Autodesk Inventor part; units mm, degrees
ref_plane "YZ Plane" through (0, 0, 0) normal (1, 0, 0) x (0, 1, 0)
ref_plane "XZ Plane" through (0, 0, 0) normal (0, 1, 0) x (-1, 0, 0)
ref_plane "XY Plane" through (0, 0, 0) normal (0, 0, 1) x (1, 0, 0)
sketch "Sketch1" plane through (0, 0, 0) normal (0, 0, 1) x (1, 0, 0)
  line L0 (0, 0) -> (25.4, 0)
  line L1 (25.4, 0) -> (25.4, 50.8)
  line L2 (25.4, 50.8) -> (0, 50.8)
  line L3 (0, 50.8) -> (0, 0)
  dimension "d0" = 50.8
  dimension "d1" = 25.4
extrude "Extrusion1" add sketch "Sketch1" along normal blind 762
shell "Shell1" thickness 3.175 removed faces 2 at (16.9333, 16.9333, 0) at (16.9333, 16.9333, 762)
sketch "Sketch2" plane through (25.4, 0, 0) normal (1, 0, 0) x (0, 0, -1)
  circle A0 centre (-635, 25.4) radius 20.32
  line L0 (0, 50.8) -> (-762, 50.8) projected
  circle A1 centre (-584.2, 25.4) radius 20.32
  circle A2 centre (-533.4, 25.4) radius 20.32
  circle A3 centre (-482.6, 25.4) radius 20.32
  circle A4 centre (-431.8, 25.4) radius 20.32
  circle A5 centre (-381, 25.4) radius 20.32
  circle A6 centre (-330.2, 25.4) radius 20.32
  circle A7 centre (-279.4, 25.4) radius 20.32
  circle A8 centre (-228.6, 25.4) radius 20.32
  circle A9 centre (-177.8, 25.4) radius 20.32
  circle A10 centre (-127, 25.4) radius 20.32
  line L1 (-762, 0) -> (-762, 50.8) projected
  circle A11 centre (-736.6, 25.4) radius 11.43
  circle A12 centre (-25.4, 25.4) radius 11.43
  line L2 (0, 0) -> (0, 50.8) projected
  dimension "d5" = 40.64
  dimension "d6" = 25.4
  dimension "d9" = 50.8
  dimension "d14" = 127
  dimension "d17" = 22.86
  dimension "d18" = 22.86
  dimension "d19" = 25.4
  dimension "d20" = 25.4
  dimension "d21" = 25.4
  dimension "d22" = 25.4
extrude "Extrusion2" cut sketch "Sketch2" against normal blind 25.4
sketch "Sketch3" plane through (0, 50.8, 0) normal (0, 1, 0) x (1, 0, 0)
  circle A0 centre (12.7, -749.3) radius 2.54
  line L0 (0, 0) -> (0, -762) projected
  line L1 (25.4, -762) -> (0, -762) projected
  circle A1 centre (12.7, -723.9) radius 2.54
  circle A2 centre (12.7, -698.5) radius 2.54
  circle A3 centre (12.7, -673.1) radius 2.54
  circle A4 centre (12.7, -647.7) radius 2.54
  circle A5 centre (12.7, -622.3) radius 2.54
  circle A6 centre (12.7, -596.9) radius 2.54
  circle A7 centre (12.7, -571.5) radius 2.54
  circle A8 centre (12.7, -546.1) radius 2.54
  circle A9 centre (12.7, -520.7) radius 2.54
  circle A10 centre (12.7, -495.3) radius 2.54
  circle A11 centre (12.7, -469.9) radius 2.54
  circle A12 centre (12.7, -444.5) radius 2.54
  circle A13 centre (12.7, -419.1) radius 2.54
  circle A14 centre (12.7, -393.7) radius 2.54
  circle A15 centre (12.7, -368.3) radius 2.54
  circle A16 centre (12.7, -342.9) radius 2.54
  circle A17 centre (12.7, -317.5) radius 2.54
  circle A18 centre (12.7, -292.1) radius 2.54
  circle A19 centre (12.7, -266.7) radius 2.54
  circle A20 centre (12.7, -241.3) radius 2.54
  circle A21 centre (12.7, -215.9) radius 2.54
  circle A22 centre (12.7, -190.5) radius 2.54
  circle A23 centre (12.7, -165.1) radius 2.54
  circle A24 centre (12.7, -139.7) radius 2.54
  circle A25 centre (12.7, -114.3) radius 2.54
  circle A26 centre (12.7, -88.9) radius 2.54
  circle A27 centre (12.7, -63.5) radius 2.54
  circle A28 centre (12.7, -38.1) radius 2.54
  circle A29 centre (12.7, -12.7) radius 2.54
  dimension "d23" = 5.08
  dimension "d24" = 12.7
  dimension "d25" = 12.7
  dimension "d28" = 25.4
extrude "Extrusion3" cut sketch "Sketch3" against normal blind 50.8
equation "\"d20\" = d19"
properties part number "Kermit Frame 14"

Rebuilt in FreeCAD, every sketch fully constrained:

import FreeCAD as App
import Part
import Sketcher

V = App.Vector
Q = App.Units.Quantity


def faces_at(feature, points):
    """Names of the faces that lie closest to the given points."""
    faces = feature.Shape.Faces
    near = lambda p: min(range(len(faces)), key=lambda i: faces[i].distToShape(Part.Vertex(*p))[0])
    return sorted({f"Face{near(p) + 1}" for p in points})


def add_polygon(sketch, points):
    """Adds a closed chain of lines whose ends are joined by coincident constraints."""
    first, n = sketch.GeometryCount, len(points)
    for a, b in zip(points, points[1:] + points[:1]):
        sketch.addGeometry(Part.LineSegment(App.Vector(*a, 0), App.Vector(*b, 0)), False)
    for i in range(n):
        sketch.addConstraint(Sketcher.Constraint("Coincident", first + i, 2, first + (i + 1) % n, 1))

doc = App.newDocument("Part")
body = doc.addObject("PartDesign::Body", "Body")

sketch1 = body.newObject("Sketcher::SketchObject", "Sketch")
sketch1.AttachmentSupport = (doc.getObject("XY_Plane"), [""])
sketch1.MapMode = "FlatFace"
add_polygon(sketch1, [(0, 50.8), (0, 0), (25.4, 0), (25.4, 50.8)])
sketch1.addConstraint(Sketcher.Constraint("Vertical", 0))
sketch1.addConstraint(Sketcher.Constraint("Horizontal", 1))
sketch1.addConstraint(Sketcher.Constraint("Vertical", 2))
sketch1.addConstraint(Sketcher.Constraint("Horizontal", 3))
sketch1.addConstraint(Sketcher.Constraint("Coincident", 0, 2, -1, 1))
sketch1.addConstraint(Sketcher.Constraint("DistanceX", 1, 1, 1, 2, Q("1 in")))
sketch1.addConstraint(Sketcher.Constraint("DistanceY", 0, 2, 0, 1, Q("2 in")))
pad1 = body.newObject("PartDesign::Pad", "Pad")
pad1.Profile = sketch1
pad1.Length = Q("30 in")
doc.recompute()

thickness = body.newObject("PartDesign::Thickness", "Thickness")
thickness.Base = (pad1, faces_at(pad1, [(16.933, 16.933, 0), (16.933, 16.933, 762)]))
thickness.Value = Q("0.125 in")
thickness.Reversed = True
thickness.Join = "Intersection"

sketch2 = body.newObject("Sketcher::SketchObject", "Sketch001")
sketch2.AttachmentSupport = (doc.getObject("YZ_Plane"), [""])
sketch2.MapMode = "FlatFace"
sketch2.AttachmentOffset = App.Placement(V(0, 0, 1 * 25.4), App.Rotation())
sketch2.addGeometry(Part.Circle(V(25.4, 635, 0), V(0, 0, 1), 20.32), False)
sketch2.addGeometry(Part.Circle(V(25.4, 584.2, 0), V(0, 0, 1), 20.32), False)
sketch2.addGeometry(Part.Circle(V(25.4, 533.4, 0), V(0, 0, 1), 20.32), False)
sketch2.addGeometry(Part.Circle(V(25.4, 482.6, 0), V(0, 0, 1), 20.32), False)
sketch2.addGeometry(Part.Circle(V(25.4, 431.8, 0), V(0, 0, 1), 20.32), False)
sketch2.addGeometry(Part.Circle(V(25.4, 381, 0), V(0, 0, 1), 20.32), False)
sketch2.addGeometry(Part.Circle(V(25.4, 330.2, 0), V(0, 0, 1), 20.32), False)
sketch2.addGeometry(Part.Circle(V(25.4, 279.4, 0), V(0, 0, 1), 20.32), False)
sketch2.addGeometry(Part.Circle(V(25.4, 228.6, 0), V(0, 0, 1), 20.32), False)
sketch2.addGeometry(Part.Circle(V(25.4, 177.8, 0), V(0, 0, 1), 20.32), False)
sketch2.addGeometry(Part.Circle(V(25.4, 127, 0), V(0, 0, 1), 20.32), False)
sketch2.addGeometry(Part.Circle(V(25.4, 736.6, 0), V(0, 0, 1), 11.43), False)
sketch2.addGeometry(Part.Circle(V(25.4, 25.4, 0), V(0, 0, 1), 11.43), False)
sketch2.addConstraint(Sketcher.Constraint("Equal", 0, 1))
sketch2.addConstraint(Sketcher.Constraint("Equal", 1, 2))
sketch2.addConstraint(Sketcher.Constraint("Equal", 2, 3))
sketch2.addConstraint(Sketcher.Constraint("Equal", 3, 4))
sketch2.addConstraint(Sketcher.Constraint("Equal", 4, 5))
sketch2.addConstraint(Sketcher.Constraint("Equal", 5, 6))
sketch2.addConstraint(Sketcher.Constraint("Equal", 6, 7))
sketch2.addConstraint(Sketcher.Constraint("Equal", 7, 8))
sketch2.addConstraint(Sketcher.Constraint("Equal", 8, 9))
sketch2.addConstraint(Sketcher.Constraint("Equal", 9, 10))
sketch2.addConstraint(Sketcher.Constraint("Equal", 11, 12))
sketch2.addConstraint(Sketcher.Constraint("Vertical", 0, 3, 1, 3))
sketch2.addConstraint(Sketcher.Constraint("Vertical", 1, 3, 2, 3))
sketch2.addConstraint(Sketcher.Constraint("Vertical", 2, 3, 3, 3))
sketch2.addConstraint(Sketcher.Constraint("Vertical", 3, 3, 4, 3))
sketch2.addConstraint(Sketcher.Constraint("Vertical", 4, 3, 5, 3))
sketch2.addConstraint(Sketcher.Constraint("Vertical", 5, 3, 6, 3))
sketch2.addConstraint(Sketcher.Constraint("Vertical", 6, 3, 7, 3))
sketch2.addConstraint(Sketcher.Constraint("Vertical", 7, 3, 8, 3))
sketch2.addConstraint(Sketcher.Constraint("Vertical", 8, 3, 9, 3))
sketch2.addConstraint(Sketcher.Constraint("Vertical", 9, 3, 10, 3))
sketch2.addConstraint(Sketcher.Constraint("Vertical", 10, 3, 11, 3))
sketch2.addConstraint(Sketcher.Constraint("Vertical", 11, 3, 12, 3))
sketch2.addConstraint(Sketcher.Constraint("Diameter", 0, Q("1.6 in")))
sketch2.addConstraint(Sketcher.Constraint("Diameter", 11, Q("0.9 in")))
sketch2.addConstraint(Sketcher.Constraint("DistanceX", -1, 1, 0, 3, Q("1 in")))
sketch2.addConstraint(Sketcher.Constraint("DistanceY", -1, 1, 10, 3, Q("5 in")))
sketch2.addConstraint(Sketcher.Constraint("DistanceY", -1, 1, 12, 3, Q("1 in")))
sketch2.addConstraint(Sketcher.Constraint("DistanceY", 1, 3, 0, 3, Q("2 in")))
sketch2.addConstraint(Sketcher.Constraint("DistanceY", 2, 3, 1, 3, Q("2 in")))
sketch2.addConstraint(Sketcher.Constraint("DistanceY", 3, 3, 2, 3, Q("2 in")))
sketch2.addConstraint(Sketcher.Constraint("DistanceY", 4, 3, 3, 3, Q("2 in")))
sketch2.addConstraint(Sketcher.Constraint("DistanceY", 5, 3, 4, 3, Q("2 in")))
sketch2.addConstraint(Sketcher.Constraint("DistanceY", 6, 3, 5, 3, Q("2 in")))
sketch2.addConstraint(Sketcher.Constraint("DistanceY", 7, 3, 6, 3, Q("2 in")))
sketch2.addConstraint(Sketcher.Constraint("DistanceY", 8, 3, 7, 3, Q("2 in")))
sketch2.addConstraint(Sketcher.Constraint("DistanceY", 9, 3, 8, 3, Q("2 in")))
sketch2.addConstraint(Sketcher.Constraint("DistanceY", 10, 3, 9, 3, Q("2 in")))
sketch2.addConstraint(Sketcher.Constraint("DistanceY", -1, 1, 11, 3, Q("29 in")))
pocket1 = body.newObject("PartDesign::Pocket", "Pocket")
pocket1.Profile = sketch2
pocket1.Length = Q("1 in")

sketch3 = body.newObject("Sketcher::SketchObject", "Sketch002")
sketch3.AttachmentSupport = (doc.getObject("XZ_Plane"), [""])
sketch3.MapMode = "FlatFace"
sketch3.AttachmentOffset = App.Placement(V(0, 0, -2 * 25.4), App.Rotation())
sketch3.addGeometry(Part.Circle(V(12.7, 749.3, 0), V(0, 0, 1), 2.54), False)
sketch3.addGeometry(Part.Circle(V(12.7, 723.9, 0), V(0, 0, 1), 2.54), False)
sketch3.addGeometry(Part.Circle(V(12.7, 698.5, 0), V(0, 0, 1), 2.54), False)
sketch3.addGeometry(Part.Circle(V(12.7, 673.1, 0), V(0, 0, 1), 2.54), False)
sketch3.addGeometry(Part.Circle(V(12.7, 647.7, 0), V(0, 0, 1), 2.54), False)
sketch3.addGeometry(Part.Circle(V(12.7, 622.3, 0), V(0, 0, 1), 2.54), False)
sketch3.addGeometry(Part.Circle(V(12.7, 596.9, 0), V(0, 0, 1), 2.54), False)
sketch3.addGeometry(Part.Circle(V(12.7, 571.5, 0), V(0, 0, 1), 2.54), False)
sketch3.addGeometry(Part.Circle(V(12.7, 546.1, 0), V(0, 0, 1), 2.54), False)
sketch3.addGeometry(Part.Circle(V(12.7, 520.7, 0), V(0, 0, 1), 2.54), False)
sketch3.addGeometry(Part.Circle(V(12.7, 495.3, 0), V(0, 0, 1), 2.54), False)
sketch3.addGeometry(Part.Circle(V(12.7, 469.9, 0), V(0, 0, 1), 2.54), False)
sketch3.addGeometry(Part.Circle(V(12.7, 444.5, 0), V(0, 0, 1), 2.54), False)
sketch3.addGeometry(Part.Circle(V(12.7, 419.1, 0), V(0, 0, 1), 2.54), False)
sketch3.addGeometry(Part.Circle(V(12.7, 393.7, 0), V(0, 0, 1), 2.54), False)
sketch3.addGeometry(Part.Circle(V(12.7, 368.3, 0), V(0, 0, 1), 2.54), False)
sketch3.addGeometry(Part.Circle(V(12.7, 342.9, 0), V(0, 0, 1), 2.54), False)
sketch3.addGeometry(Part.Circle(V(12.7, 317.5, 0), V(0, 0, 1), 2.54), False)
sketch3.addGeometry(Part.Circle(V(12.7, 292.1, 0), V(0, 0, 1), 2.54), False)
sketch3.addGeometry(Part.Circle(V(12.7, 266.7, 0), V(0, 0, 1), 2.54), False)
sketch3.addGeometry(Part.Circle(V(12.7, 241.3, 0), V(0, 0, 1), 2.54), False)
sketch3.addGeometry(Part.Circle(V(12.7, 215.9, 0), V(0, 0, 1), 2.54), False)
sketch3.addGeometry(Part.Circle(V(12.7, 190.5, 0), V(0, 0, 1), 2.54), False)
sketch3.addGeometry(Part.Circle(V(12.7, 165.1, 0), V(0, 0, 1), 2.54), False)
sketch3.addGeometry(Part.Circle(V(12.7, 139.7, 0), V(0, 0, 1), 2.54), False)
sketch3.addGeometry(Part.Circle(V(12.7, 114.3, 0), V(0, 0, 1), 2.54), False)
sketch3.addGeometry(Part.Circle(V(12.7, 88.9, 0), V(0, 0, 1), 2.54), False)
sketch3.addGeometry(Part.Circle(V(12.7, 63.5, 0), V(0, 0, 1), 2.54), False)
sketch3.addGeometry(Part.Circle(V(12.7, 38.1, 0), V(0, 0, 1), 2.54), False)
sketch3.addGeometry(Part.Circle(V(12.7, 12.7, 0), V(0, 0, 1), 2.54), False)
sketch3.addConstraint(Sketcher.Constraint("Equal", 0, 1))
sketch3.addConstraint(Sketcher.Constraint("Equal", 1, 2))
sketch3.addConstraint(Sketcher.Constraint("Equal", 2, 3))
sketch3.addConstraint(Sketcher.Constraint("Equal", 3, 4))
sketch3.addConstraint(Sketcher.Constraint("Equal", 4, 5))
sketch3.addConstraint(Sketcher.Constraint("Equal", 5, 6))
sketch3.addConstraint(Sketcher.Constraint("Equal", 6, 7))
sketch3.addConstraint(Sketcher.Constraint("Equal", 7, 8))
sketch3.addConstraint(Sketcher.Constraint("Equal", 8, 9))
sketch3.addConstraint(Sketcher.Constraint("Equal", 9, 10))
sketch3.addConstraint(Sketcher.Constraint("Equal", 10, 11))
sketch3.addConstraint(Sketcher.Constraint("Equal", 11, 12))
sketch3.addConstraint(Sketcher.Constraint("Equal", 12, 13))
sketch3.addConstraint(Sketcher.Constraint("Equal", 13, 14))
sketch3.addConstraint(Sketcher.Constraint("Equal", 14, 15))
sketch3.addConstraint(Sketcher.Constraint("Equal", 15, 16))
sketch3.addConstraint(Sketcher.Constraint("Equal", 16, 17))
sketch3.addConstraint(Sketcher.Constraint("Equal", 17, 18))
sketch3.addConstraint(Sketcher.Constraint("Equal", 18, 19))
sketch3.addConstraint(Sketcher.Constraint("Equal", 19, 20))
sketch3.addConstraint(Sketcher.Constraint("Equal", 20, 21))
sketch3.addConstraint(Sketcher.Constraint("Equal", 21, 22))
sketch3.addConstraint(Sketcher.Constraint("Equal", 22, 23))
sketch3.addConstraint(Sketcher.Constraint("Equal", 23, 24))
sketch3.addConstraint(Sketcher.Constraint("Equal", 24, 25))
sketch3.addConstraint(Sketcher.Constraint("Equal", 25, 26))
sketch3.addConstraint(Sketcher.Constraint("Equal", 26, 27))
sketch3.addConstraint(Sketcher.Constraint("Equal", 27, 28))
sketch3.addConstraint(Sketcher.Constraint("Equal", 28, 29))
sketch3.addConstraint(Sketcher.Constraint("Vertical", 0, 3, 1, 3))
sketch3.addConstraint(Sketcher.Constraint("Vertical", 1, 3, 2, 3))
sketch3.addConstraint(Sketcher.Constraint("Vertical", 2, 3, 3, 3))
sketch3.addConstraint(Sketcher.Constraint("Vertical", 3, 3, 4, 3))
sketch3.addConstraint(Sketcher.Constraint("Vertical", 4, 3, 5, 3))
sketch3.addConstraint(Sketcher.Constraint("Vertical", 5, 3, 6, 3))
sketch3.addConstraint(Sketcher.Constraint("Vertical", 6, 3, 7, 3))
sketch3.addConstraint(Sketcher.Constraint("Vertical", 7, 3, 8, 3))
sketch3.addConstraint(Sketcher.Constraint("Vertical", 8, 3, 9, 3))
sketch3.addConstraint(Sketcher.Constraint("Vertical", 9, 3, 10, 3))
sketch3.addConstraint(Sketcher.Constraint("Vertical", 10, 3, 11, 3))
sketch3.addConstraint(Sketcher.Constraint("Vertical", 11, 3, 12, 3))
sketch3.addConstraint(Sketcher.Constraint("Vertical", 12, 3, 13, 3))
sketch3.addConstraint(Sketcher.Constraint("Vertical", 13, 3, 14, 3))
sketch3.addConstraint(Sketcher.Constraint("Vertical", 14, 3, 15, 3))
sketch3.addConstraint(Sketcher.Constraint("Vertical", 15, 3, 16, 3))
sketch3.addConstraint(Sketcher.Constraint("Vertical", 16, 3, 17, 3))
sketch3.addConstraint(Sketcher.Constraint("Vertical", 17, 3, 18, 3))
sketch3.addConstraint(Sketcher.Constraint("Vertical", 18, 3, 19, 3))
sketch3.addConstraint(Sketcher.Constraint("Vertical", 19, 3, 20, 3))
sketch3.addConstraint(Sketcher.Constraint("Vertical", 20, 3, 21, 3))
sketch3.addConstraint(Sketcher.Constraint("Vertical", 21, 3, 22, 3))
sketch3.addConstraint(Sketcher.Constraint("Vertical", 22, 3, 23, 3))
sketch3.addConstraint(Sketcher.Constraint("Vertical", 23, 3, 24, 3))
sketch3.addConstraint(Sketcher.Constraint("Vertical", 24, 3, 25, 3))
sketch3.addConstraint(Sketcher.Constraint("Vertical", 25, 3, 26, 3))
sketch3.addConstraint(Sketcher.Constraint("Vertical", 26, 3, 27, 3))
sketch3.addConstraint(Sketcher.Constraint("Vertical", 27, 3, 28, 3))
sketch3.addConstraint(Sketcher.Constraint("Vertical", 28, 3, 29, 3))
sketch3.addConstraint(Sketcher.Constraint("Diameter", 0, Q("0.2 in")))
sketch3.addConstraint(Sketcher.Constraint("DistanceY", 1, 3, 0, 3, Q("1 in")))
sketch3.addConstraint(Sketcher.Constraint("DistanceY", 2, 3, 1, 3, Q("1 in")))
sketch3.addConstraint(Sketcher.Constraint("DistanceY", 3, 3, 2, 3, Q("1 in")))
sketch3.addConstraint(Sketcher.Constraint("DistanceY", 4, 3, 3, 3, Q("1 in")))
sketch3.addConstraint(Sketcher.Constraint("DistanceY", 5, 3, 4, 3, Q("1 in")))
sketch3.addConstraint(Sketcher.Constraint("DistanceY", 6, 3, 5, 3, Q("1 in")))
sketch3.addConstraint(Sketcher.Constraint("DistanceY", 7, 3, 6, 3, Q("1 in")))
sketch3.addConstraint(Sketcher.Constraint("DistanceY", 8, 3, 7, 3, Q("1 in")))
sketch3.addConstraint(Sketcher.Constraint("DistanceY", 9, 3, 8, 3, Q("1 in")))
sketch3.addConstraint(Sketcher.Constraint("DistanceY", 10, 3, 9, 3, Q("1 in")))
sketch3.addConstraint(Sketcher.Constraint("DistanceY", 11, 3, 10, 3, Q("1 in")))
sketch3.addConstraint(Sketcher.Constraint("DistanceY", 12, 3, 11, 3, Q("1 in")))
sketch3.addConstraint(Sketcher.Constraint("DistanceY", 13, 3, 12, 3, Q("1 in")))
sketch3.addConstraint(Sketcher.Constraint("DistanceY", 14, 3, 13, 3, Q("1 in")))
sketch3.addConstraint(Sketcher.Constraint("DistanceY", 15, 3, 14, 3, Q("1 in")))
sketch3.addConstraint(Sketcher.Constraint("DistanceY", 16, 3, 15, 3, Q("1 in")))
sketch3.addConstraint(Sketcher.Constraint("DistanceY", 17, 3, 16, 3, Q("1 in")))
sketch3.addConstraint(Sketcher.Constraint("DistanceY", 18, 3, 17, 3, Q("1 in")))
sketch3.addConstraint(Sketcher.Constraint("DistanceY", 19, 3, 18, 3, Q("1 in")))
sketch3.addConstraint(Sketcher.Constraint("DistanceY", 20, 3, 19, 3, Q("1 in")))
sketch3.addConstraint(Sketcher.Constraint("DistanceY", 21, 3, 20, 3, Q("1 in")))
sketch3.addConstraint(Sketcher.Constraint("DistanceY", 22, 3, 21, 3, Q("1 in")))
sketch3.addConstraint(Sketcher.Constraint("DistanceY", 23, 3, 22, 3, Q("1 in")))
sketch3.addConstraint(Sketcher.Constraint("DistanceY", 24, 3, 23, 3, Q("1 in")))
sketch3.addConstraint(Sketcher.Constraint("DistanceY", 25, 3, 24, 3, Q("1 in")))
sketch3.addConstraint(Sketcher.Constraint("DistanceY", 26, 3, 25, 3, Q("1 in")))
sketch3.addConstraint(Sketcher.Constraint("DistanceY", 27, 3, 26, 3, Q("1 in")))
sketch3.addConstraint(Sketcher.Constraint("DistanceY", 28, 3, 27, 3, Q("1 in")))
sketch3.addConstraint(Sketcher.Constraint("DistanceY", 29, 3, 28, 3, Q("1 in")))
sketch3.addConstraint(Sketcher.Constraint("DistanceX", -1, 1, 0, 3, Q("0.5 in")))
sketch3.addConstraint(Sketcher.Constraint("DistanceY", -1, 1, 29, 3, Q("0.5 in")))
pocket2 = body.newObject("PartDesign::Pocket", "Pocket001")
pocket2.Profile = sketch3
pocket2.Length = Q("2 in")
pocket2.Reversed = True

doc.recompute()
